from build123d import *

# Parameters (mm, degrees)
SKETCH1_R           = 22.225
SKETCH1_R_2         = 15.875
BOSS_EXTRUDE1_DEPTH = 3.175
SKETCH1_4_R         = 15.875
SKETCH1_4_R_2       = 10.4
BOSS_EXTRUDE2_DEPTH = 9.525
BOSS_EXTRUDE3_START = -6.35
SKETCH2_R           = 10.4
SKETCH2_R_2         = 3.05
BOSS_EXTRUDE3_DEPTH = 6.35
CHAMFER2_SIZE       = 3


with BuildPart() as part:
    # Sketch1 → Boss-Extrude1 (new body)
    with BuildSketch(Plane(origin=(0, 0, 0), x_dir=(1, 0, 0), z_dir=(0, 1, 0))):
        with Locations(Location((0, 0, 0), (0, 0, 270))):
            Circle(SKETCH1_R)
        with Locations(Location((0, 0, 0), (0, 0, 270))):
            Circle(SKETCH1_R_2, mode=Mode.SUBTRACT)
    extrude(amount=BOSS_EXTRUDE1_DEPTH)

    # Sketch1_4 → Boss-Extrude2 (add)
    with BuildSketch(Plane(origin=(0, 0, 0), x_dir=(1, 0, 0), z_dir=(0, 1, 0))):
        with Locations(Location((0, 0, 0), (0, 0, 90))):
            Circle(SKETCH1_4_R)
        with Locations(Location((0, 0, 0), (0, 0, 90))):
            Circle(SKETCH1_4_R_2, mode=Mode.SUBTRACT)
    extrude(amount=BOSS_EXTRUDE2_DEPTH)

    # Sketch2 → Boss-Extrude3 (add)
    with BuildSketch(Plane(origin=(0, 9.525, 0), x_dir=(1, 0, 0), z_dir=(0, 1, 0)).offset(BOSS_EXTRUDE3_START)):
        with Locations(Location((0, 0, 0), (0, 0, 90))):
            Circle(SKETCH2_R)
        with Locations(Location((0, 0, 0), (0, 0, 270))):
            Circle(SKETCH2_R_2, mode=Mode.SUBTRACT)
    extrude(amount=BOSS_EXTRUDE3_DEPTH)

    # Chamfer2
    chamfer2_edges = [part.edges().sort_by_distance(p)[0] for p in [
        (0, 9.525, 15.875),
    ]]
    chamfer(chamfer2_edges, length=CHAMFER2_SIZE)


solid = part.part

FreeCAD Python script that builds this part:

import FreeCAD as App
import Part
import Sketcher
from FreeCAD import Vector
Q = App.Units.Quantity


def edges_at(feature, points):
    """Names of the edges that pass closest to the given points."""
    edges = feature.Shape.Edges
    near = lambda p: min(range(len(edges)), key=lambda i: edges[i].distToShape(Part.Vertex(*p))[0])
    return sorted({f"Edge{near(p) + 1}" for p in points})

doc = App.newDocument("Part")
body = doc.addObject("PartDesign::Body", "Body")

# Sketch on XZ plane
sketch1 = doc.addObject("Sketcher::SketchObject", "Sketch")
body.addObject(sketch1)
sketch1.AttachmentSupport = (doc.XZ_Plane, [""])
sketch1.MapMode = "FlatFace"
sketch1.addGeometry([
    Part.Circle(Vector(0, 0, 0), Vector(0, 0, 1), 22),
    Part.Circle(Vector(0, 0, 0), Vector(0, 0, 1), 16),
], False)
sketch1.addConstraint([
    Sketcher.Constraint("Coincident", 0, 3, -1, 1),
    Sketcher.Constraint("Coincident", 1, 3, -1, 1),
    Sketcher.Constraint("Diameter", 0, Q("1.75 in")),
    Sketcher.Constraint("Diameter", 1, Q("1.25 in")),
])
pad1 = doc.addObject("PartDesign::Pad", "Pad")
body.addObject(pad1)
pad1.Profile = sketch1
pad1.Length = Q("0.125 in")
pad1.Reversed = True

# Sketch on XZ plane
sketch2 = doc.addObject("Sketcher::SketchObject", "Sketch001")
body.addObject(sketch2)
sketch2.AttachmentSupport = (doc.XZ_Plane, [""])
sketch2.MapMode = "FlatFace"
sketch2.addGeometry([
    Part.Circle(Vector(0, 0, 0), Vector(0, 0, 1), 16),
    Part.Circle(Vector(0, 0, 0), Vector(0, 0, 1), 10),
], False)
sketch2.addConstraint([
    Sketcher.Constraint("Coincident", 0, 3, -1, 1),
    Sketcher.Constraint("Coincident", 1, 3, -1, 1),
    Sketcher.Constraint("Diameter", 0, Q("1.25 in")),
    Sketcher.Constraint("Diameter", 1, 20.8),
])
pad2 = doc.addObject("PartDesign::Pad", "Pad001")
body.addObject(pad2)
pad2.Profile = sketch2
pad2.Length = Q("0.375 in")
pad2.Reversed = True

# Sketch on XZ plane
sketch3 = doc.addObject("Sketcher::SketchObject", "Sketch002")
body.addObject(sketch3)
sketch3.AttachmentSupport = (doc.XZ_Plane, [""])
sketch3.MapMode = "FlatFace"
sketch3.AttachmentOffset = App.Placement(Vector(0, 0, -0.125 * 25.4), App.Rotation())
sketch3.addGeometry([
    Part.Circle(Vector(0, 0, 0), Vector(0, 0, 1), 10.4),
    Part.Circle(Vector(0, 0, 0), Vector(0, 0, 1), 3),
], False)
sketch3.addConstraint([
    Sketcher.Constraint("Coincident", 0, 3, -1, 1),
    Sketcher.Constraint("Coincident", 1, 3, -1, 1),
    Sketcher.Constraint("Diameter", 0, 20.8),
    Sketcher.Constraint("Diameter", 1, 6.1),
])
pad3 = doc.addObject("PartDesign::Pad", "Pad002")
body.addObject(pad3)
pad3.Profile = sketch3
pad3.Length = Q("0.25 in")
pad3.Reversed = True
doc.recompute()

chamfer = doc.addObject("PartDesign::Chamfer", "Chamfer")
body.addObject(chamfer)
chamfer.Base = (pad3, edges_at(pad3, [(0, 9.525, 15.875)]))
chamfer.Size = 3

doc.recompute()
